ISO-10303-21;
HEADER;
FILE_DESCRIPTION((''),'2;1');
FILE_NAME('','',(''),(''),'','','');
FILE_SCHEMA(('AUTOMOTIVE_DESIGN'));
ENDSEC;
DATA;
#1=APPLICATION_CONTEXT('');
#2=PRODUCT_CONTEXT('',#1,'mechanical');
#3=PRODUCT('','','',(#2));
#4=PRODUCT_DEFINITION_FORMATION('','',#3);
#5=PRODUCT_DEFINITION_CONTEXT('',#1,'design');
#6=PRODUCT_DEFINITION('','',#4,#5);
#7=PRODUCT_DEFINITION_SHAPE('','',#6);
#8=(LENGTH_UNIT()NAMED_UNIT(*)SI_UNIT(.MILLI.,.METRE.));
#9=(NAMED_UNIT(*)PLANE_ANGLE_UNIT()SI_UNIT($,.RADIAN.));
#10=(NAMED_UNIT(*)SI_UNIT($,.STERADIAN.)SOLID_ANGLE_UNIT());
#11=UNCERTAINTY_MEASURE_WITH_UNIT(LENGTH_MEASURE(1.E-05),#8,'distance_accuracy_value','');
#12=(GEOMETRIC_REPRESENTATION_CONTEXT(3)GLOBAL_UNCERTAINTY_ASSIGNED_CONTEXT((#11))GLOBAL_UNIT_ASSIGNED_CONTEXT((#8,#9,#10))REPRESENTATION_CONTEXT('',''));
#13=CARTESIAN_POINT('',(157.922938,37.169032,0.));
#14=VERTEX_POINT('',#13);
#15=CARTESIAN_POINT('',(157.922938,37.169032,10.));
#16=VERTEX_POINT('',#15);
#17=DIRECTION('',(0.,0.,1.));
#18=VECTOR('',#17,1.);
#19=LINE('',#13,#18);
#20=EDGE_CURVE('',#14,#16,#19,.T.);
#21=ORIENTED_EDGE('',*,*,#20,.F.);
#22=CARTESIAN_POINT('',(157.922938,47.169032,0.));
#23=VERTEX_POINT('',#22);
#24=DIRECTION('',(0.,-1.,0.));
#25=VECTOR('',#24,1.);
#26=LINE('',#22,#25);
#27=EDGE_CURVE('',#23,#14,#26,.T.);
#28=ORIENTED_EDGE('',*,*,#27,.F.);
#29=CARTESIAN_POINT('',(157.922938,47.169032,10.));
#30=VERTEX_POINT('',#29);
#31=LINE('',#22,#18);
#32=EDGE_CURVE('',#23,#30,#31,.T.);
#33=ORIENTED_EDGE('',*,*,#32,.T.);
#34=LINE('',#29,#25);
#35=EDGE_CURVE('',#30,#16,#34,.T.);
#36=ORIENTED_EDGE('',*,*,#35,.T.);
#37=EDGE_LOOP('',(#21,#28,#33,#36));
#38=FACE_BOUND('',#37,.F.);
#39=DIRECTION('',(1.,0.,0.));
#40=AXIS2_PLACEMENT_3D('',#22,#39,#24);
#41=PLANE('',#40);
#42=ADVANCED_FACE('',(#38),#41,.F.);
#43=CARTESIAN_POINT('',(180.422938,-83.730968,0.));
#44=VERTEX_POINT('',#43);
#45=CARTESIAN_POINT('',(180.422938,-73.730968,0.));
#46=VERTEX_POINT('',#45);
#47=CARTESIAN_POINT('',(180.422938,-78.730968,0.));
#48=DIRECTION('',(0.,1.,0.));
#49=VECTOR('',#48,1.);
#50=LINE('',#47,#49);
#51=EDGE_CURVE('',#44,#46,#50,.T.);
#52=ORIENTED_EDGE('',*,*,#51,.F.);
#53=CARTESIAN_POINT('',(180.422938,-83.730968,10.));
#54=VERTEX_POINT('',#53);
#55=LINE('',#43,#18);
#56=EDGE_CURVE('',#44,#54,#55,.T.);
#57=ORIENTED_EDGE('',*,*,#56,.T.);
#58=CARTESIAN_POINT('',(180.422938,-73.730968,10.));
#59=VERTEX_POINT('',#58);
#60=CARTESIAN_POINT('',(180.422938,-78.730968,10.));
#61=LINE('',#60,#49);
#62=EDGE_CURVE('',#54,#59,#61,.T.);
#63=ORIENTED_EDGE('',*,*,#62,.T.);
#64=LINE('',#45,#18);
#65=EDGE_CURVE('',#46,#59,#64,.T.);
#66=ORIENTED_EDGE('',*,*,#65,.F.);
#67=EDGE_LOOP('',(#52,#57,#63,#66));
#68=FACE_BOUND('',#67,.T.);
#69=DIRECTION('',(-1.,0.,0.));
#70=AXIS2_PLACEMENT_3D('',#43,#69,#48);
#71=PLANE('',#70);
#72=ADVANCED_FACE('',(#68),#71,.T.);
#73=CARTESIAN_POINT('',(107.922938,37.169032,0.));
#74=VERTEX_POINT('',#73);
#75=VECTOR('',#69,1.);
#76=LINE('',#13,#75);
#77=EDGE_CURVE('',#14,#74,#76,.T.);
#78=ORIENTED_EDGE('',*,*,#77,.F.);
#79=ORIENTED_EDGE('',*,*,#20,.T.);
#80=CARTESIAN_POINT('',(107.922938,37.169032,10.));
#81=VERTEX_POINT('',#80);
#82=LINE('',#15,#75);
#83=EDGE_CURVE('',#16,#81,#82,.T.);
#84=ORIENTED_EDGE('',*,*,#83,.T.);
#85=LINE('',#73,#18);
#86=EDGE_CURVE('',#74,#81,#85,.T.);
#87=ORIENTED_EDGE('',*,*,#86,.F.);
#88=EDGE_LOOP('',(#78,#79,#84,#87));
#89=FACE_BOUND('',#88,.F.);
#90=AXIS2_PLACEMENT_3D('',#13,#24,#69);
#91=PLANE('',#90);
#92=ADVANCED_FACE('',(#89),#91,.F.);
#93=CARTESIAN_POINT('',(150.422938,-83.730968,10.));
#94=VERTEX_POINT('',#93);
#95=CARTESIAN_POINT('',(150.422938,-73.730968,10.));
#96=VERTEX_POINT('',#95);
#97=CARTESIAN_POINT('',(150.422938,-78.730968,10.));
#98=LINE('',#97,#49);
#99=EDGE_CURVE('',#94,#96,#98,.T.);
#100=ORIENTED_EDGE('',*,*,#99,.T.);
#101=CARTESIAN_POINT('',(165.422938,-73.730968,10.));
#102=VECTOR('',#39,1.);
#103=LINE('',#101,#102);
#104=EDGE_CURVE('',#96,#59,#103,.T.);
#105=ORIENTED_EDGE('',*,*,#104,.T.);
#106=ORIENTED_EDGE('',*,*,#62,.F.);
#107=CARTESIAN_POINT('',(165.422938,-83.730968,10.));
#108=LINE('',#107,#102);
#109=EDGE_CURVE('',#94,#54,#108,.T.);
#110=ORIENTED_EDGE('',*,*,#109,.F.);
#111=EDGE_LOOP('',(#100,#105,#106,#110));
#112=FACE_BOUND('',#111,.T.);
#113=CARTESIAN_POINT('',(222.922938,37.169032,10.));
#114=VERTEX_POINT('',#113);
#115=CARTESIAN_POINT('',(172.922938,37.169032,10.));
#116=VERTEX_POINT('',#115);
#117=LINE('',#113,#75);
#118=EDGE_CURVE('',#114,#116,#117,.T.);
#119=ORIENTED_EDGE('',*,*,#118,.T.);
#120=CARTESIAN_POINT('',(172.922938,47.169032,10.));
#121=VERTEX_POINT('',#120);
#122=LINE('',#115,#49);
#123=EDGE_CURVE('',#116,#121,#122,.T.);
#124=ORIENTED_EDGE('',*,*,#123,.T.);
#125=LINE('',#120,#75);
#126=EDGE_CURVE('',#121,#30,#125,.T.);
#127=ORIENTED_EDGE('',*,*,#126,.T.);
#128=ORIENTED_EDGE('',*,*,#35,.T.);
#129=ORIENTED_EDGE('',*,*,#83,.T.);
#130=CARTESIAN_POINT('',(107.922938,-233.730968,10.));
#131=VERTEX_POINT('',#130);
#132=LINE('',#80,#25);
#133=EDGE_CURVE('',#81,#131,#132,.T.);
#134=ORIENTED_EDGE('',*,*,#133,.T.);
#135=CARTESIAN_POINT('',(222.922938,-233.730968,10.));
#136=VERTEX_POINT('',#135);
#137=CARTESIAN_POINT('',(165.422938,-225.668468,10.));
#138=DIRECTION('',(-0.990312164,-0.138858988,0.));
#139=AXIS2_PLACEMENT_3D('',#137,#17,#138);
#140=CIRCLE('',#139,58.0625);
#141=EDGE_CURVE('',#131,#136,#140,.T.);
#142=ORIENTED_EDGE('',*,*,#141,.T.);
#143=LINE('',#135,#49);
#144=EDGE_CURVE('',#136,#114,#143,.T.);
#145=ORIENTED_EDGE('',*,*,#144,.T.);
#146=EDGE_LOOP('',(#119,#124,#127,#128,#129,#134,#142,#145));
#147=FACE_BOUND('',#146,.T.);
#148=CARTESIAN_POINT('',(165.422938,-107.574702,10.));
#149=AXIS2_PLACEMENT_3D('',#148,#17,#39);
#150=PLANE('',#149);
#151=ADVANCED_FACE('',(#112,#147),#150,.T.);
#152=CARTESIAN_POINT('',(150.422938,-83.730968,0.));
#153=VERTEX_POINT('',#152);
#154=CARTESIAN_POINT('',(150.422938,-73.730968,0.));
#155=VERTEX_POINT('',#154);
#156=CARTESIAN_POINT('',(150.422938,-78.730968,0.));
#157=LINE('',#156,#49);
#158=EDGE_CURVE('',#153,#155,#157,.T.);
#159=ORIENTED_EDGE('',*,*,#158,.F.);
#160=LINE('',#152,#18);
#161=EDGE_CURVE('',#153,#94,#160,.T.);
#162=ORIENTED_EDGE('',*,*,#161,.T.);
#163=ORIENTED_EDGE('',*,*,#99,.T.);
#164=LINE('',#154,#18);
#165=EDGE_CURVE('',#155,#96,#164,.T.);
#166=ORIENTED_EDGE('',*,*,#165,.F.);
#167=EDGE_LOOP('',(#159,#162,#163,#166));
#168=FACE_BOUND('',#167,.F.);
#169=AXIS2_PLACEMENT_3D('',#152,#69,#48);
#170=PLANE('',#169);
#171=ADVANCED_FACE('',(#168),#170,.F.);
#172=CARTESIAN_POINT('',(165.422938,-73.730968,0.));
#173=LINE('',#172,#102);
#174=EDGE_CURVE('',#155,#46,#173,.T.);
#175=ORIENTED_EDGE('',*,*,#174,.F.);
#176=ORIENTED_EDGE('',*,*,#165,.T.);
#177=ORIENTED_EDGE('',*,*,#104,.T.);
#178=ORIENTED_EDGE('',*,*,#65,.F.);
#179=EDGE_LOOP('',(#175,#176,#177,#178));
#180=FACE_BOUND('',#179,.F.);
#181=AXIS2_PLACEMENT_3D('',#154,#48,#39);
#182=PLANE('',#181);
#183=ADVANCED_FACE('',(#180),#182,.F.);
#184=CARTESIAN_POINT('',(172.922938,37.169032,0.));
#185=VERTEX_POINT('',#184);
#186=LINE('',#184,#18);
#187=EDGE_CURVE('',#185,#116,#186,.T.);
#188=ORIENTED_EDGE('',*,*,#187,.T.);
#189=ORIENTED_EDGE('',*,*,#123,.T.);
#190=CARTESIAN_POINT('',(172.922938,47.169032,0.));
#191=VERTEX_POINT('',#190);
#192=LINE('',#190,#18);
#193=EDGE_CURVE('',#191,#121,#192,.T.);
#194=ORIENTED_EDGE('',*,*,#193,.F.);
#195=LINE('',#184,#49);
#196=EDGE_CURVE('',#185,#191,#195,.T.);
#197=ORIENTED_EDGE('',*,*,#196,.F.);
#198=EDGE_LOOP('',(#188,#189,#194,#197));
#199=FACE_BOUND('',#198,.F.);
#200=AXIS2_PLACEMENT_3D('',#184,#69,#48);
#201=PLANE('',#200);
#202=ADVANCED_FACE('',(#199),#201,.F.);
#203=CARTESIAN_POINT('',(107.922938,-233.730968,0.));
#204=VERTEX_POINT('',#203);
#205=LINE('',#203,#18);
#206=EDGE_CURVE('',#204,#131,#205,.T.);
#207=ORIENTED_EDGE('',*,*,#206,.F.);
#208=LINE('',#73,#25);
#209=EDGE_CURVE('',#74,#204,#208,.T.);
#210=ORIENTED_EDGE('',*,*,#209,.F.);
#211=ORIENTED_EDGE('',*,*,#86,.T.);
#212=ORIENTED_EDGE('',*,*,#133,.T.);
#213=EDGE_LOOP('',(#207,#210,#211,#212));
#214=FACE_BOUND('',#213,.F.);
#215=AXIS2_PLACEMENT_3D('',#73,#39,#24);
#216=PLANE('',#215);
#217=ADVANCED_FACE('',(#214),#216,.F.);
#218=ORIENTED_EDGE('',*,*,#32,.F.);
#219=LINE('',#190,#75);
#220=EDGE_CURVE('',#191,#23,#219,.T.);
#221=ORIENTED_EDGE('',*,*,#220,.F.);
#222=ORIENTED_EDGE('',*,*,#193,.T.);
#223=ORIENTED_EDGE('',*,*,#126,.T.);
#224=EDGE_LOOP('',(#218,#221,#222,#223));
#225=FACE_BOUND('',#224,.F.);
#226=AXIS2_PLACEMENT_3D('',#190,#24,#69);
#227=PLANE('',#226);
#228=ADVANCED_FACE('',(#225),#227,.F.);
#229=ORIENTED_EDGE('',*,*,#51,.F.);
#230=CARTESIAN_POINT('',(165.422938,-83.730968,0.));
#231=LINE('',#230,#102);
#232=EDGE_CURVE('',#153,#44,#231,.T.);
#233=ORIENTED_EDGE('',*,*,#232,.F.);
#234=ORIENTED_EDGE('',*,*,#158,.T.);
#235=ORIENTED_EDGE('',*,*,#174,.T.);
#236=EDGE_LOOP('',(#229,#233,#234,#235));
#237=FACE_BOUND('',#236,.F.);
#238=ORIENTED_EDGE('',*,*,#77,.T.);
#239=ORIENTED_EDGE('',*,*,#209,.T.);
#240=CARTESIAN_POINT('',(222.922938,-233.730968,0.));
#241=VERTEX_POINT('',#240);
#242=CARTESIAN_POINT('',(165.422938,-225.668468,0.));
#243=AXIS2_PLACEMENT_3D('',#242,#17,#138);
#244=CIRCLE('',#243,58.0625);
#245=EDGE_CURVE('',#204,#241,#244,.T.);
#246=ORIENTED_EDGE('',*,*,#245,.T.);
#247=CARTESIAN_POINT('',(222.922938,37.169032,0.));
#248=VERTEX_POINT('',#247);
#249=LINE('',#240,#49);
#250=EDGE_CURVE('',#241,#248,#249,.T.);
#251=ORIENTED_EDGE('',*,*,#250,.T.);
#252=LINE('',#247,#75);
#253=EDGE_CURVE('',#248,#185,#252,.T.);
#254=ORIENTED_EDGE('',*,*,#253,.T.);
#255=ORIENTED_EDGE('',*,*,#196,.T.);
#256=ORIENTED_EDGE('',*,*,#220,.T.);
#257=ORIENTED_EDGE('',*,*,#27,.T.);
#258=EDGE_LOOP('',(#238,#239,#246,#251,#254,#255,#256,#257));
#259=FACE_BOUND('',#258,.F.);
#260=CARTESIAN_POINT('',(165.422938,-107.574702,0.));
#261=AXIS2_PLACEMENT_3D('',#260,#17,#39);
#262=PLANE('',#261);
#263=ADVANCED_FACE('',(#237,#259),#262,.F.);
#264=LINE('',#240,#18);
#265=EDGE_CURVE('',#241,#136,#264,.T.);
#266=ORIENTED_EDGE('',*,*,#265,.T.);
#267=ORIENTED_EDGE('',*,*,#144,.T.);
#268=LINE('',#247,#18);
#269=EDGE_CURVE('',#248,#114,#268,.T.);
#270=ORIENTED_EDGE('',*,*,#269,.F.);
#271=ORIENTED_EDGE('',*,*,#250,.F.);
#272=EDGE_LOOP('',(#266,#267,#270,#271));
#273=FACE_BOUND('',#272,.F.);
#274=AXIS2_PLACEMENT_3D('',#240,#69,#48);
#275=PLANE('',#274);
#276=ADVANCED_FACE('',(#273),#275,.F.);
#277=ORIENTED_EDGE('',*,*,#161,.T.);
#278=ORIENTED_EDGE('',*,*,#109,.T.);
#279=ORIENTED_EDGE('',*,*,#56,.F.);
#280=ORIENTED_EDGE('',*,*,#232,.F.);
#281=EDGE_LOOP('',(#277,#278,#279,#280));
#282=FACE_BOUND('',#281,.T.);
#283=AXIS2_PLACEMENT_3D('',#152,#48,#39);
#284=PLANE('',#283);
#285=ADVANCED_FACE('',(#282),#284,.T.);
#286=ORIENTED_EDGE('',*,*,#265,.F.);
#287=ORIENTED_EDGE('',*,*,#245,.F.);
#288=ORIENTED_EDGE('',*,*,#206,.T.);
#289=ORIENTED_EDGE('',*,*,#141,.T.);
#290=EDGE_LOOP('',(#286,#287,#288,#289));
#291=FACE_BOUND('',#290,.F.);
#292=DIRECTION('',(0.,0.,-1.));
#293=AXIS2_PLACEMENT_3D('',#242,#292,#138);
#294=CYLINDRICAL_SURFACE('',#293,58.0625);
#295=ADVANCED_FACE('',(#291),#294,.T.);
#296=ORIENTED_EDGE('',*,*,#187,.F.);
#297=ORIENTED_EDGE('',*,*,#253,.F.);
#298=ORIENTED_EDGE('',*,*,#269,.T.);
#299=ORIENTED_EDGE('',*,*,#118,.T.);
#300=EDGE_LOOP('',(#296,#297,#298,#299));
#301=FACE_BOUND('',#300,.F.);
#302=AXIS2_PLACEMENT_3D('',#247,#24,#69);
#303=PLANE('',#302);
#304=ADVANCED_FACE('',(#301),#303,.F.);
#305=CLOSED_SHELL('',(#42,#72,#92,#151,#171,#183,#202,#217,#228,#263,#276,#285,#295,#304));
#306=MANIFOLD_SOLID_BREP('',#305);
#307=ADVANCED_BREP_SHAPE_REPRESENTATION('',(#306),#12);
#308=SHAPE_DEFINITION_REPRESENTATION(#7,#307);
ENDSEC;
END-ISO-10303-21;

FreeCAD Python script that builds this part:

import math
import FreeCAD as App
import Part
import Sketcher

doc = App.newDocument("Part")
body = doc.addObject("PartDesign::Body", "Body")

sketch1 = body.newObject("Sketcher::SketchObject", "Sketch")
sketch1.AttachmentSupport = (doc.getObject("XY_Plane"), [""])
sketch1.MapMode = "FlatFace"
sketch1.addGeometry([
    Part.LineSegment(App.Vector(157.922938, 37.169032, 0), App.Vector(107.922938, 37.169032, 0)),
    Part.LineSegment(App.Vector(107.922938, 37.169032, 0), App.Vector(107.922938, -233.730968, 0)),
    Part.ArcOfCircle(Part.Circle(App.Vector(165.422938, -225.668468, 0), App.Vector(0, 0, 1), 58.0625), math.radians(-172.018174), math.radians(-7.981826)),
    Part.LineSegment(App.Vector(222.922938, -233.730968, 0), App.Vector(222.922938, 37.169032, 0)),
    Part.LineSegment(App.Vector(222.922938, 37.169032, 0), App.Vector(172.922938, 37.169032, 0)),
    Part.LineSegment(App.Vector(172.922938, 37.169032, 0), App.Vector(172.922938, 47.169032, 0)),
    Part.LineSegment(App.Vector(172.922938, 47.169032, 0), App.Vector(157.922938, 47.169032, 0)),
    Part.LineSegment(App.Vector(157.922938, 47.169032, 0), App.Vector(157.922938, 37.169032, 0)),
    Part.LineSegment(App.Vector(180.422938, -83.730968, 0), App.Vector(150.422938, -83.730968, 0)),
    Part.LineSegment(App.Vector(150.422938, -83.730968, 0), App.Vector(150.422938, -73.730968, 0)),
    Part.LineSegment(App.Vector(150.422938, -73.730968, 0), App.Vector(180.422938, -73.730968, 0)),
    Part.LineSegment(App.Vector(180.422938, -73.730968, 0), App.Vector(180.422938, -83.730968, 0)),
], False)
sketch1.addConstraint([
    Sketcher.Constraint("Coincident", 0, 2, 1, 1),
    Sketcher.Constraint("Coincident", 1, 2, 2, 1),
    Sketcher.Constraint("Coincident", 2, 2, 3, 1),
    Sketcher.Constraint("Coincident", 3, 2, 4, 1),
    Sketcher.Constraint("Coincident", 4, 2, 5, 1),
    Sketcher.Constraint("Coincident", 5, 2, 6, 1),
    Sketcher.Constraint("Coincident", 6, 2, 7, 1),
    Sketcher.Constraint("Coincident", 7, 2, 0, 1),
    Sketcher.Constraint("Coincident", 8, 2, 9, 1),
    Sketcher.Constraint("Coincident", 9, 2, 10, 1),
    Sketcher.Constraint("Coincident", 10, 2, 11, 1),
    Sketcher.Constraint("Coincident", 11, 2, 8, 1),
    Sketcher.Constraint("Horizontal", 0),
    Sketcher.Constraint("Vertical", 1),
    Sketcher.Constraint("Vertical", 3),
    Sketcher.Constraint("Horizontal", 4),
    Sketcher.Constraint("Vertical", 5),
    Sketcher.Constraint("Horizontal", 6),
    Sketcher.Constraint("Vertical", 7),
    Sketcher.Constraint("Horizontal", 8),
    Sketcher.Constraint("Vertical", 9),
    Sketcher.Constraint("Horizontal", 10),
    Sketcher.Constraint("Vertical", 11),
    Sketcher.Constraint("Horizontal", 1, 2, 2, 2),
    Sketcher.Constraint("Horizontal", 0, 2, 3, 2),
    Sketcher.Constraint("Equal", 0, 4),
    Sketcher.Constraint("Equal", 7, 9),
    Sketcher.Constraint("DistanceX", 0, 2, 0, 1, 50.0),
    Sketcher.Constraint("DistanceX", 6, 2, 6, 1, 15.0),
    Sketcher.Constraint("DistanceX", 8, 2, 8, 1, 30.0),
    Sketcher.Constraint("DistanceY", 5, 1, 5, 2, 10.0),
    Sketcher.Constraint("DistanceY", 1, 2, 1, 1, 270.9),
    Sketcher.Constraint("Radius", 2, 58.0625),
    Sketcher.Constraint("DistanceX", 8, 2, 7, 2, 7.5),
    Sketcher.Constraint("DistanceY", 8, 2, 7, 2, 120.9),
    Sketcher.Constraint("DistanceX", -1, 1, 0, 2, 107.922938),
    Sketcher.Constraint("DistanceY", 8, 2, -1, 1, 83.730968),
])
pad1 = body.newObject("PartDesign::Pad", "Pad")
pad1.Profile = sketch1
pad1.Length = 10

doc.recompute()
